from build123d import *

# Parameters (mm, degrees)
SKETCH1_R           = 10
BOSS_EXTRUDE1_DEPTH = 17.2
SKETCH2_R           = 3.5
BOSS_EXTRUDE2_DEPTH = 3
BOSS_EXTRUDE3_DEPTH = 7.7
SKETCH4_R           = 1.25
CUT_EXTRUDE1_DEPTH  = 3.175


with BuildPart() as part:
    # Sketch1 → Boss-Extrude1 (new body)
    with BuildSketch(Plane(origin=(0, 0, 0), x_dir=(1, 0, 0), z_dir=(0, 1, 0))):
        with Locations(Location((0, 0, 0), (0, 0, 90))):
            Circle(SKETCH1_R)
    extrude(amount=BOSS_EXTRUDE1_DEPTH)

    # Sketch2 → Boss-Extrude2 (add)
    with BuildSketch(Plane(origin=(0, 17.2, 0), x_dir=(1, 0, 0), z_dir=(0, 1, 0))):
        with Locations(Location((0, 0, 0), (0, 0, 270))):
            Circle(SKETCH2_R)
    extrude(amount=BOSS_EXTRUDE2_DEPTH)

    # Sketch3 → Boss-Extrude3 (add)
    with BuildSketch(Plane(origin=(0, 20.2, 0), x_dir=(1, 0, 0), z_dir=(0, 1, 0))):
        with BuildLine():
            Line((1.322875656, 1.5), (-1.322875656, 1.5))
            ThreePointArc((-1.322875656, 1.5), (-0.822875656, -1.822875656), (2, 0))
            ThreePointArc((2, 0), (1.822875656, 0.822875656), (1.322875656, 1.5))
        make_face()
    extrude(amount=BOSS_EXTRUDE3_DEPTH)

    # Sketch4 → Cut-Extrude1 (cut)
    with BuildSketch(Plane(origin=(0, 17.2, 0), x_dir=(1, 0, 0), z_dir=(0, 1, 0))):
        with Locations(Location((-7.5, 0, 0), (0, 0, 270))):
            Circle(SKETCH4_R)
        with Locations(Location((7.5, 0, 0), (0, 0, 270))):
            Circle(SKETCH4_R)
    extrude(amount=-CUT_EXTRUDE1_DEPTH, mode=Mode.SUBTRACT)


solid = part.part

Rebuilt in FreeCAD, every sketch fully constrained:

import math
import FreeCAD as App
import Part
import Sketcher
from FreeCAD import Vector
Q = App.Units.Quantity

doc = App.newDocument("Part")
body = doc.addObject("PartDesign::Body", "Body")

sketch1 = body.newObject("Sketcher::SketchObject", "Sketch")
sketch1.AttachmentSupport = (doc.getObject("XZ_Plane"), [""])
sketch1.MapMode = "FlatFace"
sketch1.addGeometry(Part.Circle(Vector(0, 0, 0), Vector(0, 0, 1), 10), False)
sketch1.addConstraint(Sketcher.Constraint("Coincident", 0, 3, -1, 1))
sketch1.addConstraint(Sketcher.Constraint("Diameter", 0, Q("20 mm")))
pad1 = body.newObject("PartDesign::Pad", "Pad")
pad1.Profile = sketch1
pad1.Length = 17.2
pad1.Reversed = True

sketch2 = body.newObject("Sketcher::SketchObject", "Sketch001")
sketch2.AttachmentSupport = (doc.getObject("XZ_Plane"), [""])
sketch2.MapMode = "FlatFace"
sketch2.AttachmentOffset = App.Placement(Vector(0, 0, -17.2), App.Rotation())
sketch2.addGeometry(Part.Circle(Vector(0, 0, 0), Vector(0, 0, 1), 3.5), False)
sketch2.addConstraint(Sketcher.Constraint("Coincident", 0, 3, -1, 1))
sketch2.addConstraint(Sketcher.Constraint("Diameter", 0, Q("7 mm")))
pad2 = body.newObject("PartDesign::Pad", "Pad001")
pad2.Profile = sketch2
pad2.Length = 3
pad2.Reversed = True

sketch3 = body.newObject("Sketcher::SketchObject", "Sketch002")
sketch3.AttachmentSupport = (doc.getObject("XZ_Plane"), [""])
sketch3.MapMode = "FlatFace"
sketch3.AttachmentOffset = App.Placement(Vector(0, 0, -20.2), App.Rotation())
sketch3.addGeometry(Part.LineSegment(Vector(1.3, -1.5, 0), Vector(-1.3, -1.5, 0)), False)
sketch3.addGeometry(Part.ArcOfCircle(Part.Circle(Vector(0, 0, 0), Vector(0, 0, 1), 2), math.radians(0), math.radians(229)), False)
sketch3.addGeometry(Part.ArcOfCircle(Part.Circle(Vector(0, 0, 0), Vector(0, 0, 1), 2), math.radians(-49), math.radians(0)), False)
sketch3.addConstraint(Sketcher.Constraint("Coincident", 0, 2, 1, 2))
sketch3.addConstraint(Sketcher.Constraint("Tangent", 1, 1, 2, 2))
sketch3.addConstraint(Sketcher.Constraint("Coincident", 2, 1, 0, 1))
sketch3.addConstraint(Sketcher.Constraint("Horizontal", 0))
sketch3.addConstraint(Sketcher.Constraint("Coincident", 1, 3, -1, 1))
sketch3.addConstraint(Sketcher.Constraint("Equal", 1, 2))
sketch3.addConstraint(Sketcher.Constraint("PointOnObject", 1, 1, -1))
sketch3.addConstraint(Sketcher.Constraint("Radius", 1, Q("2 mm")))
sketch3.addConstraint(Sketcher.Constraint("DistanceY", 0, 2, -1, 1, Q("1.5 mm")))
pad3 = body.newObject("PartDesign::Pad", "Pad002")
pad3.Profile = sketch3
pad3.Length = 7.7
pad3.Reversed = True

sketch4 = body.newObject("Sketcher::SketchObject", "Sketch003")
sketch4.AttachmentSupport = (doc.getObject("XZ_Plane"), [""])
sketch4.MapMode = "FlatFace"
sketch4.AttachmentOffset = App.Placement(Vector(0, 0, -17.2), App.Rotation())
sketch4.addGeometry(Part.Circle(Vector(-7.5, 0, 0), Vector(0, 0, 1), 1.2), False)
sketch4.addGeometry(Part.Circle(Vector(7.5, 0, 0), Vector(0, 0, 1), 1.2), False)
sketch4.addConstraint(Sketcher.Constraint("Equal", 0, 1))
sketch4.addConstraint(Sketcher.Constraint("Symmetric", 0, 3, 1, 3, -1, 1))
sketch4.addConstraint(Sketcher.Constraint("PointOnObject", 0, 3, -1))
sketch4.addConstraint(Sketcher.Constraint("Diameter", 0, Q("2.5 mm")))
sketch4.addConstraint(Sketcher.Constraint("DistanceX", 0, 3, 1, 3, Q("15 mm")))
pocket1 = body.newObject("PartDesign::Pocket", "Pocket")
pocket1.Profile = sketch4
pocket1.Length = 3.175
pocket1.Reversed = True

doc.recompute()
